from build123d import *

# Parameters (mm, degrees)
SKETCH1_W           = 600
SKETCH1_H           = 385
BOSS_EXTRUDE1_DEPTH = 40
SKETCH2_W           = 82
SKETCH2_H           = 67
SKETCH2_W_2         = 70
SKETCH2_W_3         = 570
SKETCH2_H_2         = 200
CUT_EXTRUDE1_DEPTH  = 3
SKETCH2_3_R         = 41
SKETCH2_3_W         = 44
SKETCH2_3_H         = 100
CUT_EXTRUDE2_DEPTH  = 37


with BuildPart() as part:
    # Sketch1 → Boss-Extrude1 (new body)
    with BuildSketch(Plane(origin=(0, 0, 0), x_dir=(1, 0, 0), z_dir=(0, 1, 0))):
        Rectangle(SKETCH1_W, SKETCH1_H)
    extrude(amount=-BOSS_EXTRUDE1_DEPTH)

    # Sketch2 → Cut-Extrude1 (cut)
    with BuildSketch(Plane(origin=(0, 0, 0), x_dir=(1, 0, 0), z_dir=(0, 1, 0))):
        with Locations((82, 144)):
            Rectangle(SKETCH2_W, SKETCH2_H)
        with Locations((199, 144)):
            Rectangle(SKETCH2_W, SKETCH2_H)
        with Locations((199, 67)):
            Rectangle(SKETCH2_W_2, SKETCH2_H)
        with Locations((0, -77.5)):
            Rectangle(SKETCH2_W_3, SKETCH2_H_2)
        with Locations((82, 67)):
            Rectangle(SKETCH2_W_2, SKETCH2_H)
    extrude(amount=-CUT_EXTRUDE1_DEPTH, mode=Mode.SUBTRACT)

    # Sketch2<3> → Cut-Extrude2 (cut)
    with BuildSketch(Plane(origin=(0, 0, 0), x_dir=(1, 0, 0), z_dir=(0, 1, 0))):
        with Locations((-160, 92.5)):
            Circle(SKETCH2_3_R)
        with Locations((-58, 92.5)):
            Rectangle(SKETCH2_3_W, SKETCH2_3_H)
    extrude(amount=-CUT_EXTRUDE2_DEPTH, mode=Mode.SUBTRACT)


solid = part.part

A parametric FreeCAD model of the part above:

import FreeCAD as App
import Part
import Sketcher
Q = App.Units.Quantity


def add_polygon(sketch, points):
    """Adds a closed chain of lines whose ends are joined by coincident constraints."""
    first, n = sketch.GeometryCount, len(points)
    for a, b in zip(points, points[1:] + points[:1]):
        sketch.addGeometry(Part.LineSegment(App.Vector(*a, 0), App.Vector(*b, 0)), False)
    for i in range(n):
        sketch.addConstraint(Sketcher.Constraint("Coincident", first + i, 2, first + (i + 1) % n, 1))

doc = App.newDocument("Part")
params = doc.addObject("Spreadsheet::Sheet", "Params")
for row, (alias, value) in enumerate([
    ("sketch1_width", "600 mm"),
    ("sketch1_height", "385 mm"),
    ("pad1_length", "40 mm"),
    ("sketch2_width", "82 mm"),
    ("sketch2_width2", "70 mm"),
    ("sketch2_width3", "570 mm"),
    ("sketch2_height", "67 mm"),
    ("sketch2_height2", "200 mm"),
    ("pocket1_length", "3 mm"),
    ("sketch3_diameter", "82 mm"),
    ("sketch3_width", "44 mm"),
    ("sketch3_height", "100 mm"),
    ("pocket2_length", "37 mm"),
], start=1):
    params.set(f"A{row}", alias)
    params.set(f"B{row}", "=" + value)
    params.setAlias(f"B{row}", alias)

body = doc.addObject("PartDesign::Body", "Body")

sketch1 = body.newObject("Sketcher::SketchObject", "Sketch")
sketch1.AttachmentSupport = (doc.getObject("XZ_Plane"), [""])
sketch1.MapMode = "FlatFace"
add_polygon(sketch1, [(-300, -192), (-300, 192), (300, 192), (300, -192)])
sketch1.addConstraint([
    Sketcher.Constraint("Vertical", 0),
    Sketcher.Constraint("Horizontal", 1),
    Sketcher.Constraint("Vertical", 2),
    Sketcher.Constraint("Horizontal", 3),
    Sketcher.Constraint("Symmetric", 0, 2, 2, 2, -1, 1),
    Sketcher.Constraint("DistanceX", 1, 1, 1, 2, Q("600 mm")),
    Sketcher.Constraint("DistanceY", 0, 1, 0, 2, Q("385 mm")),
])
sketch1.setExpression("Constraints[9]", "Params.sketch1_width")
sketch1.setExpression("Constraints[10]", "Params.sketch1_height")
pad1 = body.newObject("PartDesign::Pad", "Pad")
pad1.Profile = sketch1
pad1.setExpression("Length", "Params.pad1_length")

sketch2 = body.newObject("Sketcher::SketchObject", "Sketch001")
sketch2.AttachmentSupport = (doc.getObject("XZ_Plane"), [""])
sketch2.MapMode = "FlatFace"
add_polygon(sketch2, [(41, -178), (41, -110), (123, -110), (123, -178)])
add_polygon(sketch2, [(158, -178), (158, -110), (240, -110), (240, -178)])
add_polygon(sketch2, [(164, -100), (164, -34), (234, -34), (234, -100)])
add_polygon(sketch2, [(-285, -22), (-285, 178), (285, 178), (285, -22)])
add_polygon(sketch2, [(47, -100), (47, -34), (117, -34), (117, -100)])
sketch2.addConstraint([
    Sketcher.Constraint("Vertical", 0),
    Sketcher.Constraint("Horizontal", 1),
    Sketcher.Constraint("Vertical", 2),
    Sketcher.Constraint("Horizontal", 3),
    Sketcher.Constraint("Vertical", 4),
    Sketcher.Constraint("Horizontal", 5),
    Sketcher.Constraint("Vertical", 6),
    Sketcher.Constraint("Horizontal", 7),
    Sketcher.Constraint("Vertical", 8),
    Sketcher.Constraint("Horizontal", 9),
    Sketcher.Constraint("Vertical", 10),
    Sketcher.Constraint("Horizontal", 11),
    Sketcher.Constraint("Vertical", 12),
    Sketcher.Constraint("Horizontal", 13),
    Sketcher.Constraint("Vertical", 14),
    Sketcher.Constraint("Horizontal", 15),
    Sketcher.Constraint("Vertical", 16),
    Sketcher.Constraint("Horizontal", 17),
    Sketcher.Constraint("Vertical", 18),
    Sketcher.Constraint("Horizontal", 19),
    Sketcher.Constraint("Horizontal", 1, 2, 4, 2),
    Sketcher.Constraint("Horizontal", 3, 2, 6, 2),
    Sketcher.Constraint("Horizontal", 9, 2, 16, 2),
    Sketcher.Constraint("Horizontal", 11, 2, 18, 2),
    Sketcher.Constraint("Equal", 3, 5),
    Sketcher.Constraint("Equal", 11, 17),
    Sketcher.Constraint("Equal", 6, 8),
    Sketcher.Constraint("DistanceX", 1, 1, 1, 2, Q("82 mm")),
    Sketcher.Constraint("DistanceX", 9, 1, 9, 2, Q("70 mm")),
    Sketcher.Constraint("DistanceX", 13, 1, 13, 2, Q("570 mm")),
    Sketcher.Constraint("DistanceY", 0, 1, 0, 2, Q("67 mm")),
    Sketcher.Constraint("DistanceY", 12, 1, 12, 2, Q("200 mm")),
    Sketcher.Constraint("DistanceX", -1, 1, 0, 2, Q("41 mm")),
    Sketcher.Constraint("DistanceX", -1, 1, 4, 2, Q("158 mm")),
    Sketcher.Constraint("DistanceX", -1, 1, 8, 2, Q("164 mm")),
    Sketcher.Constraint("DistanceX", 12, 2, -1, 1, Q("285 mm")),
    Sketcher.Constraint("DistanceX", -1, 1, 16, 2, Q("47 mm")),
    Sketcher.Constraint("DistanceY", 4, 2, 8, 2, Q("77 mm")),
    Sketcher.Constraint("DistanceY", 0, 2, 12, 2, Q("288 mm")),
    Sketcher.Constraint("DistanceY", 0, 2, -1, 1, Q("110.5 mm")),
])
sketch2.setExpression("Constraints[47]", "Params.sketch2_width")
sketch2.setExpression("Constraints[48]", "Params.sketch2_width2")
sketch2.setExpression("Constraints[49]", "Params.sketch2_width3")
sketch2.setExpression("Constraints[50]", "Params.sketch2_height")
sketch2.setExpression("Constraints[51]", "Params.sketch2_height2")
pocket1 = body.newObject("PartDesign::Pocket", "Pocket")
pocket1.Profile = sketch2
pocket1.setExpression("Length", "Params.pocket1_length")
pocket1.Reversed = True

sketch3 = body.newObject("Sketcher::SketchObject", "Sketch002")
sketch3.AttachmentSupport = (doc.getObject("XZ_Plane"), [""])
sketch3.MapMode = "FlatFace"
sketch3.addGeometry(Part.Circle(App.Vector(-160, -92, 0), App.Vector(0, 0, 1), 41), False)
add_polygon(sketch3, [(-80, -142), (-80, -42), (-36, -42), (-36, -142)])
sketch3.addConstraint([
    Sketcher.Constraint("Vertical", 1),
    Sketcher.Constraint("Horizontal", 2),
    Sketcher.Constraint("Vertical", 3),
    Sketcher.Constraint("Horizontal", 4),
    Sketcher.Constraint("Diameter", 0, Q("82 mm")),
    Sketcher.Constraint("DistanceX", 2, 1, 2, 2, Q("44 mm")),
    Sketcher.Constraint("DistanceY", 1, 1, 1, 2, Q("100 mm")),
    Sketcher.Constraint("DistanceX", 0, 3, -1, 1, Q("160 mm")),
    Sketcher.Constraint("DistanceX", 1, 2, -1, 1, Q("80 mm")),
    Sketcher.Constraint("DistanceY", 0, 3, 1, 2, Q("50 mm")),
    Sketcher.Constraint("DistanceY", 0, 3, -1, 1, Q("92.5 mm")),
])
sketch3.setExpression("Constraints[8]", "Params.sketch3_diameter")
sketch3.setExpression("Constraints[9]", "Params.sketch3_width")
sketch3.setExpression("Constraints[10]", "Params.sketch3_height")
pocket2 = body.newObject("PartDesign::Pocket", "Pocket001")
pocket2.Profile = sketch3
pocket2.setExpression("Length", "Params.pocket2_length")
pocket2.Reversed = True

doc.recompute()
